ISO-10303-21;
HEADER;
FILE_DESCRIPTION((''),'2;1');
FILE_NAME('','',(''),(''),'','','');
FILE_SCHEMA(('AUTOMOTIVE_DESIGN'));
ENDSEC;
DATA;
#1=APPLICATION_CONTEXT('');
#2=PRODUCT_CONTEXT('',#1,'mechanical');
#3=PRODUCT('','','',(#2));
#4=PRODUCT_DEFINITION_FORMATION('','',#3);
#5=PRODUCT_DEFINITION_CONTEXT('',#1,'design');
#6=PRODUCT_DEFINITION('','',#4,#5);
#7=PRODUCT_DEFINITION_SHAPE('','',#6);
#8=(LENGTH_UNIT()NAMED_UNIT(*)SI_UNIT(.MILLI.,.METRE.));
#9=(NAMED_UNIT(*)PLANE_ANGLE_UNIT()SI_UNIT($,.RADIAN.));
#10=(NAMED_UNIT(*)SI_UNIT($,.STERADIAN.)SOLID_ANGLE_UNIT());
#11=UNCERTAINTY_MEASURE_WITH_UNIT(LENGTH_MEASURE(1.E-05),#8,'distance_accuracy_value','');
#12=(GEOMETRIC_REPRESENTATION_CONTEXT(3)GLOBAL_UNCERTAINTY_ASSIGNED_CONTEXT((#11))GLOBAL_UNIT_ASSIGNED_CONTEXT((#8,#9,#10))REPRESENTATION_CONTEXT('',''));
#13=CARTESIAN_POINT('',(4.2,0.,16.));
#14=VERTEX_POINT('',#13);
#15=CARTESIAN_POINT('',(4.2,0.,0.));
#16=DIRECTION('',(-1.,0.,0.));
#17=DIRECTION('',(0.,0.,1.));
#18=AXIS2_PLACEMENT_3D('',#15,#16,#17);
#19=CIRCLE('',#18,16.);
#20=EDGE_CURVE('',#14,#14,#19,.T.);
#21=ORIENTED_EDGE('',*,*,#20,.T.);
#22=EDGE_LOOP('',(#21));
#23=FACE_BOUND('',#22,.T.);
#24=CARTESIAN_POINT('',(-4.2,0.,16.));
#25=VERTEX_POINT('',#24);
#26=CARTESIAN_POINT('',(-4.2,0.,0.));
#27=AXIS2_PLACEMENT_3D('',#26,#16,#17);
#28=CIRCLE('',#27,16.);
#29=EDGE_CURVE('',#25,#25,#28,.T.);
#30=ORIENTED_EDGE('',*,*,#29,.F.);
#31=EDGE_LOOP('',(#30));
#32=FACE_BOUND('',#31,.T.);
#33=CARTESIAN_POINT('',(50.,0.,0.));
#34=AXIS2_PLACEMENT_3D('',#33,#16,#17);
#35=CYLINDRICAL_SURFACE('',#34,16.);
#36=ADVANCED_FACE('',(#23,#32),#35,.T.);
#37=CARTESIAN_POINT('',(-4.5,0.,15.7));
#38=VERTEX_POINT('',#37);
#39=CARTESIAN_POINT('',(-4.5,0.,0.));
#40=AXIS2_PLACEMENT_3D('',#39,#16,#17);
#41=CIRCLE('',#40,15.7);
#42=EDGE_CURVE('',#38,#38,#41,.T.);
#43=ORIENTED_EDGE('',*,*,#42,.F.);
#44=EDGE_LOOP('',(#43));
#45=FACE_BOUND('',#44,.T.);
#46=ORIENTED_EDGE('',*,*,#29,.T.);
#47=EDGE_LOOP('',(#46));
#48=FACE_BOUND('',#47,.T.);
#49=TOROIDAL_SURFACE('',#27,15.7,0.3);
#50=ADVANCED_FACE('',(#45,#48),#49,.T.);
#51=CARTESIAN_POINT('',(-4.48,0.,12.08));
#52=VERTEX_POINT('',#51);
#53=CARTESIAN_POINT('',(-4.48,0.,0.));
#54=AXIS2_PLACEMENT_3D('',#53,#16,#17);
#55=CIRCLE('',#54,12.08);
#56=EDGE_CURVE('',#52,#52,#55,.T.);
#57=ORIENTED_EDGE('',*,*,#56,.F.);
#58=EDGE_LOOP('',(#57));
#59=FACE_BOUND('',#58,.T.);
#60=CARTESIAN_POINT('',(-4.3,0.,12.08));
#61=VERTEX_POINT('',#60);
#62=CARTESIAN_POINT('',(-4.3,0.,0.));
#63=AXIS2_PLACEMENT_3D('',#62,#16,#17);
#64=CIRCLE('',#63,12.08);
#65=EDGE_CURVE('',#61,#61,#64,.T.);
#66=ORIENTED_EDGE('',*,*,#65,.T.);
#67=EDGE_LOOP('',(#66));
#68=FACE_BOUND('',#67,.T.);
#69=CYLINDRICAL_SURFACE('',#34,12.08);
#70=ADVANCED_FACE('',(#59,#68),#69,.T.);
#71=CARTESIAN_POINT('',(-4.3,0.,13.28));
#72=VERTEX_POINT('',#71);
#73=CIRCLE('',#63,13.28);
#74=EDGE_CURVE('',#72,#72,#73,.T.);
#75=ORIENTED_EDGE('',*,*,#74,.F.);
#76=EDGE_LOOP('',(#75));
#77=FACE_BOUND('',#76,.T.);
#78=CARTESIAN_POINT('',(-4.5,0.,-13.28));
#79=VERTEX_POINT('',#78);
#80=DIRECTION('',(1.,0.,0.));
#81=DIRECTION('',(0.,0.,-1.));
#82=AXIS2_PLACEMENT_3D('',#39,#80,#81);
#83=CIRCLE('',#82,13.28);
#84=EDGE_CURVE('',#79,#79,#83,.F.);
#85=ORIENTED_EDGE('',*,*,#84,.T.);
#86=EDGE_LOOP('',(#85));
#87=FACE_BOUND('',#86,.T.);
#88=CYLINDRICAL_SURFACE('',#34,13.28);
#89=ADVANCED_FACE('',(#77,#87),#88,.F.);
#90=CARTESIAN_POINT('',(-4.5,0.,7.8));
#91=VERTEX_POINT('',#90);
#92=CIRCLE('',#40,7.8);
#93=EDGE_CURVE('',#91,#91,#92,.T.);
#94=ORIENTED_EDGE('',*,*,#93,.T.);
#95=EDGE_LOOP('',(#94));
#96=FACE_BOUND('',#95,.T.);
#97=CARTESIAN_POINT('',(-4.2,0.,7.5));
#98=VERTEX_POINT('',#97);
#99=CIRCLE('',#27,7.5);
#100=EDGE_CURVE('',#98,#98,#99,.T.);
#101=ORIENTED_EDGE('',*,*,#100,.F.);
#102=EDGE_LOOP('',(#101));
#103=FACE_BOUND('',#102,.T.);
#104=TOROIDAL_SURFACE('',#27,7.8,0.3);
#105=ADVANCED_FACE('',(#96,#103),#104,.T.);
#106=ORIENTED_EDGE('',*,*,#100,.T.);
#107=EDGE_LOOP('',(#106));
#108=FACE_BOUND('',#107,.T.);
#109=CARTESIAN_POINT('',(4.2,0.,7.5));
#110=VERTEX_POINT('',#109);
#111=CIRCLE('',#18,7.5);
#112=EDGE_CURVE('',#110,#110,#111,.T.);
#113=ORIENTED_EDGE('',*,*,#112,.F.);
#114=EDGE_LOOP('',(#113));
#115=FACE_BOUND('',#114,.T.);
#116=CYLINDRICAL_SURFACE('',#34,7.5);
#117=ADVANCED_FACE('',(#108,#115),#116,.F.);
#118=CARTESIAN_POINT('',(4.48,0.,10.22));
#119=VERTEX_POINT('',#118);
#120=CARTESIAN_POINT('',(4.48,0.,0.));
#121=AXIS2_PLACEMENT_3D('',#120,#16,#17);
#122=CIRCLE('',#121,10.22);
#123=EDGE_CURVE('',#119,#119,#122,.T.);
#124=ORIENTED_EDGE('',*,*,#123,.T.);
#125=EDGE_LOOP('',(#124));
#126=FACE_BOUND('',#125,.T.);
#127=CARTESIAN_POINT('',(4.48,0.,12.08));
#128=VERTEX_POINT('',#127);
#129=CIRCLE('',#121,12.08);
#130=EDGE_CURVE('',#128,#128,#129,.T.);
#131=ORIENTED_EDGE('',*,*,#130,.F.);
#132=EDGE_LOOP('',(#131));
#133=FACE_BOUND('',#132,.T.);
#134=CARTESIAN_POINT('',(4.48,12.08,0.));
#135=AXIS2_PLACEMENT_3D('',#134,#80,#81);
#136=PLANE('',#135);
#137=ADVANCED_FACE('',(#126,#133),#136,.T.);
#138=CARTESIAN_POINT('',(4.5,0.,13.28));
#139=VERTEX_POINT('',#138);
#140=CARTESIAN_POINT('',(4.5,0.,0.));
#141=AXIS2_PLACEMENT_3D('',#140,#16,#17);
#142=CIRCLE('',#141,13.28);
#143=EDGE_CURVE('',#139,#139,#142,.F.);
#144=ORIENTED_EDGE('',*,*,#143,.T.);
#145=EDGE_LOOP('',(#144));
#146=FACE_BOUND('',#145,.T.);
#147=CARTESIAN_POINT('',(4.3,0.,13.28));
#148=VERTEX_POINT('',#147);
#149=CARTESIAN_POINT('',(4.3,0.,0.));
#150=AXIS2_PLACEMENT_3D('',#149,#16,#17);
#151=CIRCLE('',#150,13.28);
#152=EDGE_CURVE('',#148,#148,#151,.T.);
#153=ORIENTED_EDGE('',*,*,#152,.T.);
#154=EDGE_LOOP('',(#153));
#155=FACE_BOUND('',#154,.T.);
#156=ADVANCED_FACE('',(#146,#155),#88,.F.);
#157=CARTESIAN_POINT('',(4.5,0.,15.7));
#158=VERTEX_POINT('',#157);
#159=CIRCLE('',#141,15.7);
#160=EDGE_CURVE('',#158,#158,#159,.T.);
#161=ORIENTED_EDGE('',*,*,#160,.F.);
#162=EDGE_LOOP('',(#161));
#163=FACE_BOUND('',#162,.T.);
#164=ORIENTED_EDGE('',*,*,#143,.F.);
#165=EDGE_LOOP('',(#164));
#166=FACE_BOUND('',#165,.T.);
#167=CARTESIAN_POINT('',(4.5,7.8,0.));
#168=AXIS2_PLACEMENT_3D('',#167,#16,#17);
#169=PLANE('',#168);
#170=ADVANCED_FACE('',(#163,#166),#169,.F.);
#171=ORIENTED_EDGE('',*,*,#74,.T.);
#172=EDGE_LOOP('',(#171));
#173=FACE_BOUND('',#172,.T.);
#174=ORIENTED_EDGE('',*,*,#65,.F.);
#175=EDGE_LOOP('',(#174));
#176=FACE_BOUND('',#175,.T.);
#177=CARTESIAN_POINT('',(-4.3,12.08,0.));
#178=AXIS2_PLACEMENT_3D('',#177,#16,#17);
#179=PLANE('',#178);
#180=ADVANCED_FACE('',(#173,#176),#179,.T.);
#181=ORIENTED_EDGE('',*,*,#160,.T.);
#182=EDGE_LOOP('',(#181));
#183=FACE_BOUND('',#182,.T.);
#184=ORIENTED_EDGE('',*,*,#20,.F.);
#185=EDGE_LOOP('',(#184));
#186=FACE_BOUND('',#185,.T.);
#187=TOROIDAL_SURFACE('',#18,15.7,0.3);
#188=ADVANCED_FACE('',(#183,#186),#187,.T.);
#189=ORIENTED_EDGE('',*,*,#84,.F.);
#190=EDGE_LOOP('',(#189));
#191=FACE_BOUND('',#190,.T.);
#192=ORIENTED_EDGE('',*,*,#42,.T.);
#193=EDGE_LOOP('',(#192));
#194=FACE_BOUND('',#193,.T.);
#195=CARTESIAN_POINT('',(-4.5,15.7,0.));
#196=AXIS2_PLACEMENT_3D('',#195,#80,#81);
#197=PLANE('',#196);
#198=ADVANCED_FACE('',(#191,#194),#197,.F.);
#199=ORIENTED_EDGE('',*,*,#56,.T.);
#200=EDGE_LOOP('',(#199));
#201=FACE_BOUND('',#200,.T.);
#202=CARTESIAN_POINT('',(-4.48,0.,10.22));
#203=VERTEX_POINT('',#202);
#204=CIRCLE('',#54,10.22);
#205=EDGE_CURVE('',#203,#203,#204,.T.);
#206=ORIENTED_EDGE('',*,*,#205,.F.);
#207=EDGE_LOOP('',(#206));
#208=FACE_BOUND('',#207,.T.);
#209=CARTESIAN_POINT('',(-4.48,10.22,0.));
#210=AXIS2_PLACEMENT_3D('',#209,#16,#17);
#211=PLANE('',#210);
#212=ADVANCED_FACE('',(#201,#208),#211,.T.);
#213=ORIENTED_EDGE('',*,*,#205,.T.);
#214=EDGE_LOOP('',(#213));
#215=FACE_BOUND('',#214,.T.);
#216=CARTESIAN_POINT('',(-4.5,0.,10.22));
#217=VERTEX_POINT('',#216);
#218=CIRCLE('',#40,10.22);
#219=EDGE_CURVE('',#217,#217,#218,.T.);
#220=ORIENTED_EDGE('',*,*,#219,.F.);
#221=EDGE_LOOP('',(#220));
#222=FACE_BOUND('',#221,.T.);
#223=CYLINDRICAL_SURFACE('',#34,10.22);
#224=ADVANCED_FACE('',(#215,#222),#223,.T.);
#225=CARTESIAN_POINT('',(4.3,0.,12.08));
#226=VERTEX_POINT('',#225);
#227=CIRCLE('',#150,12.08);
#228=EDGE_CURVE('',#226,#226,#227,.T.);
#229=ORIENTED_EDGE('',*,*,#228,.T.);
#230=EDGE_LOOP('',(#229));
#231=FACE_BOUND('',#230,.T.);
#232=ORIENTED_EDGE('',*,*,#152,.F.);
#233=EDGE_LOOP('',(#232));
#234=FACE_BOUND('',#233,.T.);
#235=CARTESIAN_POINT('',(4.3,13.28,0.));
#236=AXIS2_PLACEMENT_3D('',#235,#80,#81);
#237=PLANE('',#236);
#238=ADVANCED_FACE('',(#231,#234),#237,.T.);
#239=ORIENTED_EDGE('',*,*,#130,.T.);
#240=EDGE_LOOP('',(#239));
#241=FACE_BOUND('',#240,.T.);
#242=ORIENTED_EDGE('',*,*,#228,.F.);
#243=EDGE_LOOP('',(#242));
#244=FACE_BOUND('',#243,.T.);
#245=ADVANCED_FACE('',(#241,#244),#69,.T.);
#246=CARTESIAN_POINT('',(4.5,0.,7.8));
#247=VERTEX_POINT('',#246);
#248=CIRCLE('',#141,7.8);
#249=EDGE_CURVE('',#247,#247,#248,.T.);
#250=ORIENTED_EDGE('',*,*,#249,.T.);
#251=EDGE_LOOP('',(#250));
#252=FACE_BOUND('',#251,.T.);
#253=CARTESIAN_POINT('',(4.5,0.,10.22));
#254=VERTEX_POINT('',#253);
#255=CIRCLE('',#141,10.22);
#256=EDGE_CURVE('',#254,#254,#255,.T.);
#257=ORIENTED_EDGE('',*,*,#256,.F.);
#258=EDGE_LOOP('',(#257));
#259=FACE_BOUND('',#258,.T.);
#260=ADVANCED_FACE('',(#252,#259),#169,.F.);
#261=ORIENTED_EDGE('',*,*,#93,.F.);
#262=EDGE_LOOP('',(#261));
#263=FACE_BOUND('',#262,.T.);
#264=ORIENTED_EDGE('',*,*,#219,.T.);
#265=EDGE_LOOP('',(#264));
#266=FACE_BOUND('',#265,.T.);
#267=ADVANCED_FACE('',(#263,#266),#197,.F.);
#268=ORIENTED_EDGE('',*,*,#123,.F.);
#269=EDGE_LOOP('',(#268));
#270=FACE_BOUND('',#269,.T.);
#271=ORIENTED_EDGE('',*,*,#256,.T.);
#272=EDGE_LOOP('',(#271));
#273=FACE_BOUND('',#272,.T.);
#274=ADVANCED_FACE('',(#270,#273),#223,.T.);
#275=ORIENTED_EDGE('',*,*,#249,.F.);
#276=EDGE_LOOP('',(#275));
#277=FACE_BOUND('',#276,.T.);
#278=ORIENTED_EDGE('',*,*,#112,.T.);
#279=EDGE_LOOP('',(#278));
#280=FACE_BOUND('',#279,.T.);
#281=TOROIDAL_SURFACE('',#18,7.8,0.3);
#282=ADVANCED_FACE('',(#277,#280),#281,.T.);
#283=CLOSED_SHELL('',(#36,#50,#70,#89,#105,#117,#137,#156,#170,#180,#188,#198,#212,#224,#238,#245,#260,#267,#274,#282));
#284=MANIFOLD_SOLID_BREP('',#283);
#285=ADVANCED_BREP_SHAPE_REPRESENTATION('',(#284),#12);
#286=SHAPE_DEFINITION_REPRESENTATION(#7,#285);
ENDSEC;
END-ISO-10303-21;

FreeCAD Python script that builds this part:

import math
import FreeCAD as App
import Part
import Sketcher
from FreeCAD import Vector


def add_polygon(sketch, points):
    """Adds a closed chain of lines whose ends are joined by coincident constraints."""
    first, n = sketch.GeometryCount, len(points)
    for a, b in zip(points, points[1:] + points[:1]):
        sketch.addGeometry(Part.LineSegment(App.Vector(*a, 0), App.Vector(*b, 0)), False)
    for i in range(n):
        sketch.addConstraint(Sketcher.Constraint("Coincident", first + i, 2, first + (i + 1) % n, 1))

doc = App.newDocument("Part")
body = doc.addObject("PartDesign::Body", "Body")

# Sketch on XY plane
sketch1 = doc.addObject("Sketcher::SketchObject", "Sketch")
body.addObject(sketch1)
sketch1.AttachmentSupport = (doc.XY_Plane, [""])
sketch1.MapMode = "FlatFace"
sketch1.addGeometry([
    Part.LineSegment(Vector(-4.5, 15.7, 0), Vector(-4.5, 7.8, 0)),  # 0
    Part.ArcOfCircle(Part.Circle(Vector(-4.2, 7.8, 0), Vector(0, 0, 1), 0.3), math.radians(-180), math.radians(-90)),  # 1
    Part.LineSegment(Vector(-4.2, 7.5, 0), Vector(4.2, 7.5, 0)),  # 2
    Part.ArcOfCircle(Part.Circle(Vector(4.2, 7.8, 0), Vector(0, 0, 1), 0.3), math.radians(-90), math.radians(0)),  # 3
    Part.LineSegment(Vector(4.5, 7.8, 0), Vector(4.5, 15.7, 0)),  # 4
    Part.ArcOfCircle(Part.Circle(Vector(4.2, 15.7, 0), Vector(0, 0, 1), 0.3), math.radians(0), math.radians(90)),  # 5
    Part.LineSegment(Vector(4.2, 16, 0), Vector(-4.2, 16, 0)),  # 6
    Part.ArcOfCircle(Part.Circle(Vector(-4.2, 15.7, 0), Vector(0, 0, 1), 0.3), math.radians(90), math.radians(180)),  # 7
], False)
sketch1.addConstraint([
    Sketcher.Constraint("Tangent", 0, 2, 1, 1),
    Sketcher.Constraint("Tangent", 1, 2, 2, 1),
    Sketcher.Constraint("Tangent", 2, 2, 3, 1),
    Sketcher.Constraint("Tangent", 3, 2, 4, 1),
    Sketcher.Constraint("Tangent", 4, 2, 5, 1),
    Sketcher.Constraint("Tangent", 5, 2, 6, 1),
    Sketcher.Constraint("Tangent", 6, 2, 7, 1),
    Sketcher.Constraint("Tangent", 7, 2, 0, 1),
    Sketcher.Constraint("Vertical", 0),
    Sketcher.Constraint("Horizontal", 2),
    Sketcher.Constraint("Vertical", 4),
    Sketcher.Constraint("Horizontal", 6),
    Sketcher.Constraint("Equal", 1, 3),
    Sketcher.Constraint("Equal", 3, 5),
    Sketcher.Constraint("Equal", 5, 7),
    Sketcher.Constraint("Radius", 1, 0.3),
    Sketcher.Constraint("DistanceX", 2, 1, 2, 2, 8.4),
    Sketcher.Constraint("DistanceY", 0, 2, 0, 1, 7.9),
    Sketcher.Constraint("DistanceY", -1, 1, 5, 2, 16.0),
    Sketcher.Constraint("DistanceX", 1, 3, -1, 1, 4.2),
])
revolution = doc.addObject("PartDesign::Revolution", "Revolution")
body.addObject(revolution)
revolution.Profile = sketch1
revolution.ReferenceAxis = (sketch1, ["H_Axis"])
revolution.Angle = 360

# Sketch on XY plane
sketch2 = doc.addObject("Sketcher::SketchObject", "Sketch001")
body.addObject(sketch2)
sketch2.AttachmentSupport = (doc.XY_Plane, [""])
sketch2.MapMode = "FlatFace"
add_polygon(sketch2, [(-6.3, 7.5), (-4.5, 7.5), (-4.5, 10.22), (-4.48, 10.22), (-4.48, 12.08), (-4.3, 12.08), (-4.3, 13.28), (-6.3, 13.28)])  # lines 0-7
sketch2.addConstraint([
    Sketcher.Constraint("Horizontal", 0),
    Sketcher.Constraint("Vertical", 1),
    Sketcher.Constraint("Horizontal", 2),
    Sketcher.Constraint("Vertical", 3),
    Sketcher.Constraint("Horizontal", 4),
    Sketcher.Constraint("Vertical", 5),
    Sketcher.Constraint("Horizontal", 6),
    Sketcher.Constraint("Vertical", 7),
    Sketcher.Constraint("DistanceX", 6, 2, 6, 1, 2.0),
    Sketcher.Constraint("DistanceX", 0, 1, 0, 2, 1.8),
    Sketcher.Constraint("DistanceY", 5, 1, 5, 2, 1.2),
    Sketcher.Constraint("DistanceX", 2, 1, 2, 2, 0.02),
    Sketcher.Constraint("DistanceY", 1, 1, 1, 2, 2.72),
    Sketcher.Constraint("DistanceY", 3, 1, 3, 2, 1.86),
    Sketcher.Constraint("DistanceX", 0, 2, -1, 1, 4.5),
    Sketcher.Constraint("DistanceY", -1, 1, 0, 2, 7.5),
])
groove = doc.addObject("PartDesign::Groove", "Groove")
body.addObject(groove)
groove.Profile = sketch2
groove.ReferenceAxis = (sketch2, ["H_Axis"])
groove.Angle = 360

# Sketch on XY plane
sketch3 = doc.addObject("Sketcher::SketchObject", "Sketch002")
body.addObject(sketch3)
sketch3.AttachmentSupport = (doc.XY_Plane, [""])
sketch3.MapMode = "FlatFace"
add_polygon(sketch3, [(4.3, 13.28), (4.3, 12.08), (4.48, 12.08), (4.48, 10.22), (4.5, 10.22), (4.5, 7.5), (6.3, 7.5), (6.3, 13.28)])  # lines 0-7
sketch3.addConstraint([
    Sketcher.Constraint("Vertical", 0),
    Sketcher.Constraint("Horizontal", 1),
    Sketcher.Constraint("Vertical", 2),
    Sketcher.Constraint("Horizontal", 3),
    Sketcher.Constraint("Vertical", 4),
    Sketcher.Constraint("Horizontal", 5),
    Sketcher.Constraint("Vertical", 6),
    Sketcher.Constraint("Horizontal", 7),
    Sketcher.Constraint("DistanceX", 7, 2, 7, 1, 2.0),
    Sketcher.Constraint("DistanceX", 5, 1, 5, 2, 1.8),
    Sketcher.Constraint("DistanceY", 0, 2, 0, 1, 1.2),
    Sketcher.Constraint("DistanceX", 1, 1, 1, 2, 0.18),
    Sketcher.Constraint("DistanceY", 2, 2, 2, 1, 1.86),
    Sketcher.Constraint("DistanceY", 4, 2, 4, 1, 2.72),
    Sketcher.Constraint("DistanceX", -1, 1, 0, 2, 4.3),
    Sketcher.Constraint("DistanceY", -1, 1, 4, 2, 7.5),
])
groove2 = doc.addObject("PartDesign::Groove", "Groove001")
body.addObject(groove2)
groove2.Profile = sketch3
groove2.ReferenceAxis = (sketch3, ["H_Axis"])
groove2.Angle = 360

doc.recompute()
